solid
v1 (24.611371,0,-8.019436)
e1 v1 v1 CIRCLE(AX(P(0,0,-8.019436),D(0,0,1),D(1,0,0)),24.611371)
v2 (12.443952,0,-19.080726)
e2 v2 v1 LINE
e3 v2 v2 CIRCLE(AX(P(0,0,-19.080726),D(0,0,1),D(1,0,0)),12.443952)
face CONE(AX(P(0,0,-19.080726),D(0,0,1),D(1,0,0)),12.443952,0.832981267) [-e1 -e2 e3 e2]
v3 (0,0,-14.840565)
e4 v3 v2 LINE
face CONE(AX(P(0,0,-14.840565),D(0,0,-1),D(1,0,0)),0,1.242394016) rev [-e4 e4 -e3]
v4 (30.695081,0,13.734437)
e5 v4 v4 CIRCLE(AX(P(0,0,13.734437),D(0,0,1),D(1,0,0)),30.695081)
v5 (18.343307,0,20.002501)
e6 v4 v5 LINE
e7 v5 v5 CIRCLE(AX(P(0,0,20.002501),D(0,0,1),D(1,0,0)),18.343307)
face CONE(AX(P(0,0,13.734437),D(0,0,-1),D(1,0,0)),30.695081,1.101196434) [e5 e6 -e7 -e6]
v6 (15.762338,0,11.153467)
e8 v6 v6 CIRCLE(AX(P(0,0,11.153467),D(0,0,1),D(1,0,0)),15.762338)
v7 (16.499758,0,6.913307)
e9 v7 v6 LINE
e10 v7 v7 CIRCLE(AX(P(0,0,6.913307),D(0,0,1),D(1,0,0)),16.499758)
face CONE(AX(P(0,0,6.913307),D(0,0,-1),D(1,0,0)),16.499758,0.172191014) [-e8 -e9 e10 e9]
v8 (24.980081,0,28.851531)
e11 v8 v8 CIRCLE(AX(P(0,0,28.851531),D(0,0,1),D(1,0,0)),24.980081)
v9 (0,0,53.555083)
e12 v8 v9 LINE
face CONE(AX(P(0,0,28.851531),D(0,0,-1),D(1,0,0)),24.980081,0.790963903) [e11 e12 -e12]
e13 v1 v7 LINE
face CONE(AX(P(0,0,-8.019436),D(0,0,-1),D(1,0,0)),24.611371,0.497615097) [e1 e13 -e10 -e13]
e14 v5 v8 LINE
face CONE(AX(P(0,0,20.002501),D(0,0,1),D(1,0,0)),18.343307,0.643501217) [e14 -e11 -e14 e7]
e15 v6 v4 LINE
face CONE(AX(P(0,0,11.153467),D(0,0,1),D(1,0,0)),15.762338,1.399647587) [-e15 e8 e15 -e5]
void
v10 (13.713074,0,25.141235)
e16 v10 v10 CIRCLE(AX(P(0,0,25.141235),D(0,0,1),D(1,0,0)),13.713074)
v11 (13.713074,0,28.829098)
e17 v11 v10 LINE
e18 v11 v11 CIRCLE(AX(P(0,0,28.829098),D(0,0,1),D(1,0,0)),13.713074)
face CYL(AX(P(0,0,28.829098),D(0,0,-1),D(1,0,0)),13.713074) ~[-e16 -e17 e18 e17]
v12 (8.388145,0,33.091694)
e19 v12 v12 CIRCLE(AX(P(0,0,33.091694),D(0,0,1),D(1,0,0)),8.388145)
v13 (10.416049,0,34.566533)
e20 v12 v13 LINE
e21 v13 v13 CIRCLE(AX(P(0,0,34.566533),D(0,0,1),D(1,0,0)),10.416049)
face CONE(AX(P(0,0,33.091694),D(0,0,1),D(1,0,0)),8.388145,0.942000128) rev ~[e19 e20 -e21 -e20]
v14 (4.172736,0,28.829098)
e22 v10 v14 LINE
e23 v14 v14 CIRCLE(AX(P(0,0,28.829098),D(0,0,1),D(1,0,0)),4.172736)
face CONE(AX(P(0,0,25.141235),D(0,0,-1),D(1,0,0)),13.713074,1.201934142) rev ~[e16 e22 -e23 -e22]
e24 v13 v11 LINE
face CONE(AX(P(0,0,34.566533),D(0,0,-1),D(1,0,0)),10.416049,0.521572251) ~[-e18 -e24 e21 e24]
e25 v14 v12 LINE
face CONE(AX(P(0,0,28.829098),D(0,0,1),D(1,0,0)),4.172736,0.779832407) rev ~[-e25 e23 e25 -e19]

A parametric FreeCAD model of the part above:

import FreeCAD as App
import Part
import Sketcher

V = App.Vector
Q = App.Units.Quantity


def add_polygon(sketch, points):
    """Adds a closed chain of lines whose ends are joined by coincident constraints."""
    first, n = sketch.GeometryCount, len(points)
    for a, b in zip(points, points[1:] + points[:1]):
        sketch.addGeometry(Part.LineSegment(App.Vector(*a, 0), App.Vector(*b, 0)), False)
    for i in range(n):
        sketch.addConstraint(Sketcher.Constraint("Coincident", first + i, 2, first + (i + 1) % n, 1))

doc = App.newDocument("Part")
body = doc.addObject("PartDesign::Body", "Body")

# Sketch on XZ plane
sketch1 = body.newObject("Sketcher::SketchObject", "Sketch")
sketch1.AttachmentSupport = (doc.getObject("XZ_Plane"), [""])
sketch1.MapMode = "FlatFace"
add_polygon(sketch1, [(0, 53.6), (0, -14.8), (12.4, -19.1), (24.6, -8), (16.5, 6.9), (15.8, 11.2), (30.7, 13.7), (18.3, 20), (25, 28.9)])  # lines 0-8
add_polygon(sketch1, [(13.7, 25.1), (4.2, 28.8), (8.4, 33.1), (10.4, 34.6), (13.7, 28.8)])  # lines 9-13
sketch1.addConstraint([
    Sketcher.Constraint("Vertical", 0),
    Sketcher.Constraint("Vertical", 13),
    Sketcher.Constraint("PointOnObject", 0, 2, -2),
    Sketcher.Constraint("Perpendicular", 8, 10),
    Sketcher.Constraint("Horizontal", 9, 2, 12, 2),
    Sketcher.Constraint("DistanceY", 0, 2, 5, 2, Q("28.575002 mm")),
    Sketcher.Constraint("DistanceX", 7, 2, 5, 2, Q("5.715 mm")),
    Sketcher.Constraint("DistanceY", 7, 2, 11, 2, Q("5.715002 mm")),
    Sketcher.Constraint("DistanceY", 0, 2, 0, 1, Q("68.395648 mm")),
    Sketcher.Constraint("DistanceY", -1, 1, 6, 2, Q("20.002501 mm")),
    Sketcher.Constraint("DistanceX", 9, 2, 4, 2, Q("11.589602 mm")),
    Sketcher.Constraint("Distance", 2, Q("16.44379 mm")),
    Sketcher.Constraint("Distance", 5, Q("15.154149 mm")),
    Sketcher.Constraint("Distance", 6, Q("13.851171 mm")),
    Sketcher.Constraint("Distance", 7, Q("11.061288 mm")),
    Sketcher.Constraint("Distance", 12, Q("6.617291 mm")),
    Sketcher.Constraint("DistanceY", 13, 2, 13, 1, Q("3.687863 mm")),
    Sketcher.Constraint("DistanceX", -1, 1, 2, 2, Q("24.611371 mm")),
    Sketcher.Constraint("DistanceX", -1, 1, 3, 2, Q("16.499758 mm")),
    Sketcher.Constraint("DistanceX", -1, 1, 5, 2, Q("30.695081 mm")),
    Sketcher.Constraint("DistanceY", -1, 1, 7, 2, Q("28.851531 mm")),
    Sketcher.Constraint("DistanceX", -1, 1, 11, 2, Q("10.416049 mm")),
    Sketcher.Constraint("DistanceY", 1, 2, 0, 2, Q("4.240161 mm")),
    Sketcher.Constraint("DistanceX", 1, 2, 2, 2, Q("12.167419 mm")),
    Sketcher.Constraint("DistanceX", 4, 2, 3, 2, Q("0.73742 mm")),
    Sketcher.Constraint("DistanceY", 3, 2, 4, 2, Q("4.24016 mm")),
    Sketcher.Constraint("DistanceY", 4, 2, 9, 2, Q("17.675631 mm")),
    Sketcher.Constraint("DistanceX", 9, 2, 10, 2, Q("4.215409 mm")),
])
revolution = body.newObject("PartDesign::Revolution", "Revolution")
revolution.Profile = sketch1
revolution.ReferenceAxis = (sketch1, ["V_Axis"])
revolution.Angle = 360

doc.recompute()
